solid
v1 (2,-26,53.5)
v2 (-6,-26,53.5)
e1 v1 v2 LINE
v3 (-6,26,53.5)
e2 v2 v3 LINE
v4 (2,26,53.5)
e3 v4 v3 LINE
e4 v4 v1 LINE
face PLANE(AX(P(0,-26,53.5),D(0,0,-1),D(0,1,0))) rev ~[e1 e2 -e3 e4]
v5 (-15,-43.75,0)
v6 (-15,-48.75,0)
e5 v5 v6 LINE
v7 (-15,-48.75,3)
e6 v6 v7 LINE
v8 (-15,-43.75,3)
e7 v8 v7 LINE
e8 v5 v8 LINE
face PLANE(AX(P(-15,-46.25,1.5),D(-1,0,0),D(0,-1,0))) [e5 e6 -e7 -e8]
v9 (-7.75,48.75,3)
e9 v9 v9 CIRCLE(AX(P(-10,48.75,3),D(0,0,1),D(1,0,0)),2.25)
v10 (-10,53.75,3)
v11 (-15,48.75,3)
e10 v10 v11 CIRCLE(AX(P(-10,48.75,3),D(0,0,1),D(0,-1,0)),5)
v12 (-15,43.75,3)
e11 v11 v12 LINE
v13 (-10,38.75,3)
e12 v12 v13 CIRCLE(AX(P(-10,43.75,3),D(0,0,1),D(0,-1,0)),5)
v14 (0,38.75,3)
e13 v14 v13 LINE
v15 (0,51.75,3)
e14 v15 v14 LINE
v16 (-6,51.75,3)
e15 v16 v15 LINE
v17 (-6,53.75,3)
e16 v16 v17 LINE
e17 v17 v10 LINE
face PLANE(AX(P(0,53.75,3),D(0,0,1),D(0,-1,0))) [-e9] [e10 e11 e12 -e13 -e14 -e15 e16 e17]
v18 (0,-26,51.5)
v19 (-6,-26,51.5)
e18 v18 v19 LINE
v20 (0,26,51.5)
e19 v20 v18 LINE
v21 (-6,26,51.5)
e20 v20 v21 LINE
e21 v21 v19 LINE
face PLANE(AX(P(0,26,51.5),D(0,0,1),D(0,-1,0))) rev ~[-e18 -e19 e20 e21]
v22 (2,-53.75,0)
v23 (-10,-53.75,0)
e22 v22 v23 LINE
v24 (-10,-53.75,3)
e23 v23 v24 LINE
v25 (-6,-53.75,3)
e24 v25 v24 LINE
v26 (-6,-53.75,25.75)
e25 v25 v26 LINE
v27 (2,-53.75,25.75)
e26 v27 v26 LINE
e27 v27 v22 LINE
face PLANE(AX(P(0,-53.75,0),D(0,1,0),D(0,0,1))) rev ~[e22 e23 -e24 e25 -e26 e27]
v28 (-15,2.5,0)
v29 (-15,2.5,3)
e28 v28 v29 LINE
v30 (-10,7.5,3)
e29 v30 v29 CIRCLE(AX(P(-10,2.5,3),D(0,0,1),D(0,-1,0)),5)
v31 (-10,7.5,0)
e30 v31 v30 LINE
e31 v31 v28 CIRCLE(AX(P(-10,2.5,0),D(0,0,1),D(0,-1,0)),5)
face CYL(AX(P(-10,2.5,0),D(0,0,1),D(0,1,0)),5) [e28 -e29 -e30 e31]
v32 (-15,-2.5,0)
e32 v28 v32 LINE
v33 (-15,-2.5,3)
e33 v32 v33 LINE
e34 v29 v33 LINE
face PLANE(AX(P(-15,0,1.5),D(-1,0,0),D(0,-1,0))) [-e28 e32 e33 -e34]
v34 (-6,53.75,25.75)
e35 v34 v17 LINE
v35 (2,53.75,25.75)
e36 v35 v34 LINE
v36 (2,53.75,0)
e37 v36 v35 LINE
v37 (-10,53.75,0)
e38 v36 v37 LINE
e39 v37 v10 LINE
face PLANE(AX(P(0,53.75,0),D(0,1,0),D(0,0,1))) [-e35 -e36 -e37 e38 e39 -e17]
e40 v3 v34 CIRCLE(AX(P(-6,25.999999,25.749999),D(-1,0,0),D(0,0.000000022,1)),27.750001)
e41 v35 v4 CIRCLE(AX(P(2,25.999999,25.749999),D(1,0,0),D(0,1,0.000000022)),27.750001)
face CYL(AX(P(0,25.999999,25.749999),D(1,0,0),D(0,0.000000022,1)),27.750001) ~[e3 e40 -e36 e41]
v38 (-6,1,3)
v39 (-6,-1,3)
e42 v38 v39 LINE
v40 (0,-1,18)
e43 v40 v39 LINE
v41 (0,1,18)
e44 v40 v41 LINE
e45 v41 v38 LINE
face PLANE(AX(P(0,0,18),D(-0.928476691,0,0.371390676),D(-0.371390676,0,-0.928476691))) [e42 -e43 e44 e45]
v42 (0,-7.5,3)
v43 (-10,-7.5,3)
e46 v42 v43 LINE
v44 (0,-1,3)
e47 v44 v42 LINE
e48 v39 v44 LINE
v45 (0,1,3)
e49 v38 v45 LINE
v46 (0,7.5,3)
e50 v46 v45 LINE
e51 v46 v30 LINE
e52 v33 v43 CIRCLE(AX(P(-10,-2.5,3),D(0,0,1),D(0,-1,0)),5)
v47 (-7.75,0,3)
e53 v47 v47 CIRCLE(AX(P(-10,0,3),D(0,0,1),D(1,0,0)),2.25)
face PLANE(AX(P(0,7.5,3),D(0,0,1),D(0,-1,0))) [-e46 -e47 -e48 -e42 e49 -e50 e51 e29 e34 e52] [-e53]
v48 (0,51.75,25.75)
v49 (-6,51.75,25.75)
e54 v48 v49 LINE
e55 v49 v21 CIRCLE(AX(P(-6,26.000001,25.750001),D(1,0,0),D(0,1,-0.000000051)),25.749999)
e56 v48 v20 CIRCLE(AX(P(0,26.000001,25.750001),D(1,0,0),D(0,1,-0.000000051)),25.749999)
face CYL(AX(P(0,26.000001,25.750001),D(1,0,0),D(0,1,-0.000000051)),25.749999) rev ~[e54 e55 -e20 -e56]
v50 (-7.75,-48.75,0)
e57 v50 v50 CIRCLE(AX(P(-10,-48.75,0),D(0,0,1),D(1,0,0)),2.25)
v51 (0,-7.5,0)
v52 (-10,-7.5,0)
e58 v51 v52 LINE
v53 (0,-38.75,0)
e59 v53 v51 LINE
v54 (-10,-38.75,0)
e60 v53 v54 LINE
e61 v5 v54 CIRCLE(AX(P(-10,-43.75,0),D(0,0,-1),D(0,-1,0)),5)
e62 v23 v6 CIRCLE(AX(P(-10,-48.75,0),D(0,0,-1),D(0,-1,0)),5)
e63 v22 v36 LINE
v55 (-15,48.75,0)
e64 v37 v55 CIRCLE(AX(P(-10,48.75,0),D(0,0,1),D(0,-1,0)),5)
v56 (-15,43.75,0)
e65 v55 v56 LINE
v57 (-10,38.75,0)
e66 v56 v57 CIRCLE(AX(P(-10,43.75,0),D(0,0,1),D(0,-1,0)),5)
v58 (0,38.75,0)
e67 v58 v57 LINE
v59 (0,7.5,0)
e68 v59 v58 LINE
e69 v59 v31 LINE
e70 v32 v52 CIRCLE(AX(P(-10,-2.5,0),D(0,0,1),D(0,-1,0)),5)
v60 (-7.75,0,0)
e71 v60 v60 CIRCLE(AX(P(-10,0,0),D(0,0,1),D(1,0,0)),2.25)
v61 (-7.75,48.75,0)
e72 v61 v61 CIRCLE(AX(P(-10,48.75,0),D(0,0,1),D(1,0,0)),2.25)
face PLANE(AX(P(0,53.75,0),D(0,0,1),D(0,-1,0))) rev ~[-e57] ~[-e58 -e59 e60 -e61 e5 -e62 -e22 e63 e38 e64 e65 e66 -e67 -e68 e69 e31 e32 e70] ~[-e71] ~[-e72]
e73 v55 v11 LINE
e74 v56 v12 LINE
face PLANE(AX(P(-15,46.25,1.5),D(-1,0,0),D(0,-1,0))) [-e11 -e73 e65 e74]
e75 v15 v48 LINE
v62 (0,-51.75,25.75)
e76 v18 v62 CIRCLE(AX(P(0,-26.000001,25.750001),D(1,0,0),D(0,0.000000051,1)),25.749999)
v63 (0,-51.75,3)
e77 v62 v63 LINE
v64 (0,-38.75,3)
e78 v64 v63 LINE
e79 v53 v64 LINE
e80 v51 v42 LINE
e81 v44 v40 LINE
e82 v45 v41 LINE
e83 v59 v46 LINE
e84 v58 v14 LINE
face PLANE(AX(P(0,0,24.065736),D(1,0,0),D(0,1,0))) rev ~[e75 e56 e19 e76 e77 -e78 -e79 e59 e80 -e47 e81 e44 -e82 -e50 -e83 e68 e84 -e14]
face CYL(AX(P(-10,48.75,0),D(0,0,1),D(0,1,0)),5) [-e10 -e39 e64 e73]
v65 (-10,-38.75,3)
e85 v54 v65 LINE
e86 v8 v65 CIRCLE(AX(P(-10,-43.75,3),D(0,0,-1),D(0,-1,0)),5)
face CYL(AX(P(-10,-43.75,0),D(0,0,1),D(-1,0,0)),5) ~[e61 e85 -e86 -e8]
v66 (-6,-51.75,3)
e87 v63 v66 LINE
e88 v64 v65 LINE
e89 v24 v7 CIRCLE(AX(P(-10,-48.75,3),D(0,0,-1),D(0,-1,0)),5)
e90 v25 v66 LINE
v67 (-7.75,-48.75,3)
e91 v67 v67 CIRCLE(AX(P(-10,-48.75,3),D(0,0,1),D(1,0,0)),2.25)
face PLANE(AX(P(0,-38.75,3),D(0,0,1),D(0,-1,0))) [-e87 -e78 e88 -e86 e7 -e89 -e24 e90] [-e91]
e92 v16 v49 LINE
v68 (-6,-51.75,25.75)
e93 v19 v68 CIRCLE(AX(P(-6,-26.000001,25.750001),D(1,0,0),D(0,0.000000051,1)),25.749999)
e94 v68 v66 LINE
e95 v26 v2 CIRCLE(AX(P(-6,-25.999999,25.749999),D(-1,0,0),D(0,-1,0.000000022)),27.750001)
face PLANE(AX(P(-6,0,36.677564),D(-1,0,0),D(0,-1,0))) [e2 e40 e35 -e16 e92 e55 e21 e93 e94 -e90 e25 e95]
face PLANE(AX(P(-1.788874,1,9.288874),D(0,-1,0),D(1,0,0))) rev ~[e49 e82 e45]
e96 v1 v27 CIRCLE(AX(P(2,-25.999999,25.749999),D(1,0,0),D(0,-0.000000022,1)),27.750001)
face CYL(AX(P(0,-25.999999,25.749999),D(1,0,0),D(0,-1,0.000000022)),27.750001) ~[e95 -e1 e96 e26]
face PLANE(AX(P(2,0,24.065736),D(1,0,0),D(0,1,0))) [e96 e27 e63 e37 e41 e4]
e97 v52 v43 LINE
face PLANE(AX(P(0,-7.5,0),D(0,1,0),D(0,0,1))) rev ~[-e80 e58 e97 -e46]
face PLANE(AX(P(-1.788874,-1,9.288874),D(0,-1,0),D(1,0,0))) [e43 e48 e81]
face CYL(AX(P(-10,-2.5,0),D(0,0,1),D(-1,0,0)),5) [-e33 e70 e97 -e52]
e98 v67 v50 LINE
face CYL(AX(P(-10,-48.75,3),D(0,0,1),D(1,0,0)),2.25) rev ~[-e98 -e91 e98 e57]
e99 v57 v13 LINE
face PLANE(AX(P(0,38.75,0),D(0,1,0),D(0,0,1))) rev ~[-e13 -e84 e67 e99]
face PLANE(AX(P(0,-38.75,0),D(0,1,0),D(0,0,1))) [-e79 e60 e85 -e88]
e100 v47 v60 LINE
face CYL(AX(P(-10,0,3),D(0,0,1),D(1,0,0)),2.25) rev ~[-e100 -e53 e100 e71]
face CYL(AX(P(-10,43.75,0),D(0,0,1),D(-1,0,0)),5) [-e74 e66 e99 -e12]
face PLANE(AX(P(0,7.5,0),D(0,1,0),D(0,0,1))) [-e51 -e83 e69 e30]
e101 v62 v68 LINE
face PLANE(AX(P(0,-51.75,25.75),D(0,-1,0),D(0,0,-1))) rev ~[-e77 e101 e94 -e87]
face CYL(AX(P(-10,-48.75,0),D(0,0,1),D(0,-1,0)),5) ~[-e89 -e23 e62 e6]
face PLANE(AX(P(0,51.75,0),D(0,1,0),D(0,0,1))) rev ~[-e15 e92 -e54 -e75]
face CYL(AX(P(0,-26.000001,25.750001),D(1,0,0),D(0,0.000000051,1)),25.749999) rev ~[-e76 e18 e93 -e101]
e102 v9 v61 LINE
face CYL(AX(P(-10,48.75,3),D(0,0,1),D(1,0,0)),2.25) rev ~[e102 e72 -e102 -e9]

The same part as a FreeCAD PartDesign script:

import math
import FreeCAD as App
import Part
import Sketcher
from FreeCAD import Vector
Q = App.Units.Quantity


def edges_at(feature, points):
    """Names of the edges that pass closest to the given points."""
    edges = feature.Shape.Edges
    near = lambda p: min(range(len(edges)), key=lambda i: edges[i].distToShape(Part.Vertex(*p))[0])
    return sorted({f"Edge{near(p) + 1}" for p in points})

doc = App.newDocument("Part")
body = doc.addObject("PartDesign::Body", "Body")

# Sketch on YZ plane
sketch1 = body.newObject("Sketcher::SketchObject", "Sketch")
sketch1.AttachmentSupport = (doc.getObject("YZ_Plane"), [""])
sketch1.MapMode = "FlatFace"
sketch1.addGeometry([
    Part.LineSegment(Vector(-54, 26, 0), Vector(-54, 0, 0)),  # 0
    Part.LineSegment(Vector(-54, 0, 0), Vector(54, 0, 0)),  # 1
    Part.LineSegment(Vector(54, 0, 0), Vector(54, 26, 0)),  # 2
    Part.ArcOfCircle(Part.Circle(Vector(26, 26, 0), Vector(0, 0, 1), 28), math.radians(0), math.radians(90)),  # 3
    Part.LineSegment(Vector(26, 54, 0), Vector(-26, 54, 0)),  # 4
    Part.ArcOfCircle(Part.Circle(Vector(-26, 26, 0), Vector(0, 0, 1), 28), math.radians(90), math.radians(180)),  # 5
], False)
sketch1.addConstraint([
    Sketcher.Constraint("Coincident", 0, 2, 1, 1),
    Sketcher.Constraint("Coincident", 1, 2, 2, 1),
    Sketcher.Constraint("Tangent", 2, 2, 3, 1),
    Sketcher.Constraint("Tangent", 3, 2, 4, 1),
    Sketcher.Constraint("Tangent", 4, 2, 5, 1),
    Sketcher.Constraint("Tangent", 5, 2, 0, 1),
    Sketcher.Constraint("Vertical", 0),
    Sketcher.Constraint("Horizontal", 1),
    Sketcher.Constraint("Vertical", 2),
    Sketcher.Constraint("Horizontal", 4),
    Sketcher.Constraint("Equal", 3, 5),
    Sketcher.Constraint("Symmetric", 0, 2, 1, 2, -1, 1),
    Sketcher.Constraint("DistanceX", 4, 2, 4, 1, Q("52 mm")),
    Sketcher.Constraint("Radius", 3, Q("27.750001 mm")),
    Sketcher.Constraint("DistanceY", 0, 2, 0, 1, Q("25.75 mm")),
])
pad1 = body.newObject("PartDesign::Pad", "Pad")
pad1.Profile = sketch1
pad1.Length = 2

# Sketch on YZ plane
sketch2 = body.newObject("Sketcher::SketchObject", "Sketch001")
sketch2.AttachmentSupport = (doc.getObject("YZ_Plane"), [""])
sketch2.MapMode = "FlatFace"
sketch2.addGeometry([
    Part.ArcOfCircle(Part.Circle(Vector(-26, 25.8, 0), Vector(0, 0, 1), 25.7), math.radians(90), math.radians(180)),  # 0
    Part.LineSegment(Vector(-51.8, 25.8, 0), Vector(-51.8, 0, 0)),  # 1
    Part.LineSegment(Vector(-51.8, 0, 0), Vector(-53.8, 0, 0)),  # 2
    Part.LineSegment(Vector(-53.8, 0, 0), Vector(-53.8, 25.8, 0)),  # 3
    Part.ArcOfCircle(Part.Circle(Vector(-26, 25.7, 0), Vector(0, 0, 1), 27.8), math.radians(90), math.radians(180)),  # 4
    Part.LineSegment(Vector(-26, 53.5, 0), Vector(26, 53.5, 0)),  # 5
    Part.ArcOfCircle(Part.Circle(Vector(26, 25.7, 0), Vector(0, 0, 1), 27.8), math.radians(0), math.radians(90)),  # 6
    Part.LineSegment(Vector(53.8, 25.8, 0), Vector(53.8, 0, 0)),  # 7
    Part.LineSegment(Vector(53.8, 0, 0), Vector(51.8, 0, 0)),  # 8
    Part.LineSegment(Vector(51.8, 0, 0), Vector(51.8, 25.8, 0)),  # 9
    Part.ArcOfCircle(Part.Circle(Vector(26, 25.8, 0), Vector(0, 0, 1), 25.7), math.radians(0), math.radians(90)),  # 10
    Part.LineSegment(Vector(26, 51.5, 0), Vector(-26, 51.5, 0)),  # 11
], False)
sketch2.addConstraint([
    Sketcher.Constraint("Tangent", 0, 2, 1, 1),
    Sketcher.Constraint("Coincident", 1, 2, 2, 1),
    Sketcher.Constraint("Coincident", 2, 2, 3, 1),
    Sketcher.Constraint("Tangent", 3, 2, 4, 2),
    Sketcher.Constraint("Tangent", 4, 1, 5, 1),
    Sketcher.Constraint("Tangent", 5, 2, 6, 2),
    Sketcher.Constraint("Tangent", 6, 1, 7, 1),
    Sketcher.Constraint("Coincident", 7, 2, 8, 1),
    Sketcher.Constraint("Coincident", 8, 2, 9, 1),
    Sketcher.Constraint("Tangent", 9, 2, 10, 1),
    Sketcher.Constraint("Tangent", 10, 2, 11, 1),
    Sketcher.Constraint("Tangent", 11, 2, 0, 1),
    Sketcher.Constraint("Vertical", 1),
    Sketcher.Constraint("Horizontal", 2),
    Sketcher.Constraint("Vertical", 3),
    Sketcher.Constraint("Horizontal", 5),
    Sketcher.Constraint("Vertical", 7),
    Sketcher.Constraint("Horizontal", 8),
    Sketcher.Constraint("Vertical", 9),
    Sketcher.Constraint("Horizontal", 11),
    Sketcher.Constraint("Coincident", 4, 3, 0, 3),
    Sketcher.Constraint("Coincident", 10, 3, 6, 3),
    Sketcher.Constraint("Equal", 4, 6),
    Sketcher.Constraint("Symmetric", 2, 2, 7, 2, -1, 1),
    Sketcher.Constraint("PointOnObject", 1, 2, -1),
    Sketcher.Constraint("DistanceX", 2, 2, 2, 1, Q("2 mm")),
    Sketcher.Constraint("DistanceX", 5, 1, 5, 2, Q("52 mm")),
    Sketcher.Constraint("Radius", 0, Q("25.749999 mm")),
    Sketcher.Constraint("DistanceY", 1, 2, 1, 1, Q("25.75 mm")),
])
pad2 = body.newObject("PartDesign::Pad", "Pad001")
pad2.Profile = sketch2
pad2.Length = 6
pad2.Reversed = True

# Sketch on YZ plane
sketch3 = body.newObject("Sketcher::SketchObject", "Sketch002")
sketch3.AttachmentSupport = (doc.getObject("YZ_Plane"), [""])
sketch3.MapMode = "FlatFace"
sketch3.addGeometry([
    Part.LineSegment(Vector(7.5, 3, 0), Vector(7.5, 0, 0)),  # 0
    Part.LineSegment(Vector(7.5, 0, 0), Vector(-7.5, 0, 0)),  # 1
    Part.LineSegment(Vector(-7.5, 0, 0), Vector(-7.5, 3, 0)),  # 2
    Part.LineSegment(Vector(-7.5, 3, 0), Vector(7.5, 3, 0)),  # 3
    Part.LineSegment(Vector(53.8, 3, 0), Vector(53.8, 0, 0)),  # 4
    Part.LineSegment(Vector(53.8, 0, 0), Vector(38.8, 0, 0)),  # 5
    Part.LineSegment(Vector(38.8, 0, 0), Vector(38.8, 3, 0)),  # 6
    Part.LineSegment(Vector(38.8, 3, 0), Vector(53.8, 3, 0)),  # 7
    Part.LineSegment(Vector(-38.8, 3, 0), Vector(-38.8, 0, 0)),  # 8
    Part.LineSegment(Vector(-38.8, 0, 0), Vector(-53.8, 0, 0)),  # 9
    Part.LineSegment(Vector(-53.8, 0, 0), Vector(-53.8, 3, 0)),  # 10
    Part.LineSegment(Vector(-53.8, 3, 0), Vector(-38.8, 3, 0)),  # 11
], False)
sketch3.addConstraint([
    Sketcher.Constraint("Coincident", 0, 2, 1, 1),
    Sketcher.Constraint("Coincident", 1, 2, 2, 1),
    Sketcher.Constraint("Coincident", 2, 2, 3, 1),
    Sketcher.Constraint("Coincident", 3, 2, 0, 1),
    Sketcher.Constraint("Coincident", 4, 2, 5, 1),
    Sketcher.Constraint("Coincident", 5, 2, 6, 1),
    Sketcher.Constraint("Coincident", 6, 2, 7, 1),
    Sketcher.Constraint("Coincident", 7, 2, 4, 1),
    Sketcher.Constraint("Coincident", 8, 2, 9, 1),
    Sketcher.Constraint("Coincident", 9, 2, 10, 1),
    Sketcher.Constraint("Coincident", 10, 2, 11, 1),
    Sketcher.Constraint("Coincident", 11, 2, 8, 1),
    Sketcher.Constraint("Vertical", 0),
    Sketcher.Constraint("Horizontal", 1),
    Sketcher.Constraint("Vertical", 2),
    Sketcher.Constraint("Horizontal", 3),
    Sketcher.Constraint("Vertical", 4),
    Sketcher.Constraint("Horizontal", 5),
    Sketcher.Constraint("Vertical", 6),
    Sketcher.Constraint("Horizontal", 7),
    Sketcher.Constraint("Vertical", 8),
    Sketcher.Constraint("Horizontal", 9),
    Sketcher.Constraint("Vertical", 10),
    Sketcher.Constraint("Horizontal", 11),
    Sketcher.Constraint("Symmetric", 0, 2, 1, 2, -1, 1),
    Sketcher.Constraint("Symmetric", 5, 2, 8, 2, -1, 1),
    Sketcher.Constraint("Symmetric", 4, 2, 9, 2, -2),
    Sketcher.Constraint("Horizontal", 3, 2, 6, 2),
    Sketcher.Constraint("Horizontal", 7, 2, 10, 2),
    Sketcher.Constraint("Equal", 3, 5),
    Sketcher.Constraint("DistanceX", 1, 2, 1, 1, Q("15 mm")),
    Sketcher.Constraint("DistanceY", 0, 2, 0, 1, Q("3 mm")),
    Sketcher.Constraint("DistanceX", 8, 2, 5, 2, Q("77.5 mm")),
])
pad3 = body.newObject("PartDesign::Pad", "Pad002")
pad3.Profile = sketch3
pad3.Length = 15
pad3.Reversed = True

# Sketch on XZ plane
sketch4 = body.newObject("Sketcher::SketchObject", "Sketch003")
sketch4.AttachmentSupport = (doc.getObject("XZ_Plane"), [""])
sketch4.MapMode = "FlatFace"
sketch4.addGeometry([
    Part.LineSegment(Vector(0, 18, 0), Vector(-6, 3, 0)),
    Part.LineSegment(Vector(-6, 3, 0), Vector(0, 3, 0)),
    Part.LineSegment(Vector(0, 3, 0), Vector(0, 18, 0)),
], False)
sketch4.addConstraint([
    Sketcher.Constraint("Coincident", 0, 2, 1, 1),
    Sketcher.Constraint("Coincident", 1, 2, 2, 1),
    Sketcher.Constraint("Coincident", 2, 2, 0, 1),
    Sketcher.Constraint("Horizontal", 1),
    Sketcher.Constraint("Vertical", 2),
    Sketcher.Constraint("PointOnObject", 1, 2, -2),
    Sketcher.Constraint("DistanceX", 1, 1, 1, 2, Q("6 mm")),
    Sketcher.Constraint("DistanceY", 2, 1, 2, 2, Q("15 mm")),
    Sketcher.Constraint("DistanceY", -1, 1, 0, 2, Q("3 mm")),
])
pad4 = body.newObject("PartDesign::Pad", "Pad003")
pad4.Profile = sketch4
pad4.Length = 2
pad4.Midplane = True

# Sketch on XY plane
sketch5 = body.newObject("Sketcher::SketchObject", "Sketch004")
sketch5.AttachmentSupport = (doc.getObject("XY_Plane"), [""])
sketch5.MapMode = "FlatFace"
sketch5.AttachmentOffset = App.Placement(Vector(0, 0, 3), App.Rotation())
sketch5.addGeometry([
    Part.Circle(Vector(-10, 48.8, 0), Vector(0, 0, 1), 2.2),
    Part.Circle(Vector(-10, 0, 0), Vector(0, 0, 1), 2.2),
    Part.Circle(Vector(-10, -48.8, 0), Vector(0, 0, 1), 2.2),
], False)
sketch5.addConstraint([
    Sketcher.Constraint("Equal", 0, 1),
    Sketcher.Constraint("Equal", 1, 2),
    Sketcher.Constraint("Symmetric", 0, 3, 2, 3, -1),
    Sketcher.Constraint("PointOnObject", 1, 3, -1),
    Sketcher.Constraint("Vertical", 0, 3, 1, 3),
    Sketcher.Constraint("Diameter", 0, Q("4.5 mm")),
    Sketcher.Constraint("DistanceX", 0, 3, -1, 1, Q("10 mm")),
    Sketcher.Constraint("DistanceY", 2, 3, 0, 3, Q("97.5 mm")),
])
pocket1 = body.newObject("PartDesign::Pocket", "Pocket")
pocket1.Profile = sketch5
pocket1.Type = "ThroughAll"
doc.recompute()

fillet = body.newObject("PartDesign::Fillet", "Fillet")
fillet.Base = (pocket1, edges_at(pocket1, [
    (-15, -53.75, 1.5),
    (-15, 53.75, 1.5),
    (-15, 38.75, 1.5),
    (-15, 7.5, 1.5),
    (-15, -7.5, 1.5),
    (-15, -38.75, 1.5),
]))
fillet.Radius = 5

doc.recompute()
